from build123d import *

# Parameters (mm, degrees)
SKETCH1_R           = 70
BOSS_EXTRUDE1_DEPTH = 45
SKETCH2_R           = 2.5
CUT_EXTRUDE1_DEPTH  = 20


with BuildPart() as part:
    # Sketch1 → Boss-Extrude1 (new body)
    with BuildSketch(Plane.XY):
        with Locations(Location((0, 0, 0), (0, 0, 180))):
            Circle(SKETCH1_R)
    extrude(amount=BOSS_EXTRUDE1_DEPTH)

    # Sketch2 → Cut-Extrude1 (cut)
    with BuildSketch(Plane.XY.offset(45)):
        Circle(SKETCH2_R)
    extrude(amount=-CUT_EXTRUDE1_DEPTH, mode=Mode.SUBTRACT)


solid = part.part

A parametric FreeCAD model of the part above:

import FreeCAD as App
import Part
import Sketcher
from FreeCAD import Vector
Q = App.Units.Quantity

doc = App.newDocument("Part")
body = doc.addObject("PartDesign::Body", "Body")

sketch1 = doc.addObject("Sketcher::SketchObject", "Sketch")
body.addObject(sketch1)
sketch1.AttachmentSupport = (doc.XY_Plane, [""])
sketch1.MapMode = "FlatFace"
sketch1.addGeometry(Part.Circle(Vector(0, 0, 0), Vector(0, 0, 1), 70), False)
sketch1.addConstraint([
    Sketcher.Constraint("Coincident", 0, 3, -1, 1),
    Sketcher.Constraint("Diameter", 0, Q("140 mm")),
])
pad1 = doc.addObject("PartDesign::Pad", "Pad")
body.addObject(pad1)
pad1.Profile = sketch1
pad1.Length = 45

sketch2 = doc.addObject("Sketcher::SketchObject", "Sketch001")
body.addObject(sketch2)
sketch2.AttachmentSupport = (doc.XY_Plane, [""])
sketch2.MapMode = "FlatFace"
sketch2.AttachmentOffset = App.Placement(Vector(0, 0, 45), App.Rotation())
sketch2.addGeometry(Part.Circle(Vector(0, 0, 0), Vector(0, 0, 1), 2.5), False)
sketch2.addConstraint([
    Sketcher.Constraint("Coincident", 0, 3, -1, 1),
    Sketcher.Constraint("Diameter", 0, Q("5 mm")),
])
pocket1 = doc.addObject("PartDesign::Pocket", "Pocket")
body.addObject(pocket1)
pocket1.Profile = sketch2
pocket1.Length = 20

doc.recompute()
